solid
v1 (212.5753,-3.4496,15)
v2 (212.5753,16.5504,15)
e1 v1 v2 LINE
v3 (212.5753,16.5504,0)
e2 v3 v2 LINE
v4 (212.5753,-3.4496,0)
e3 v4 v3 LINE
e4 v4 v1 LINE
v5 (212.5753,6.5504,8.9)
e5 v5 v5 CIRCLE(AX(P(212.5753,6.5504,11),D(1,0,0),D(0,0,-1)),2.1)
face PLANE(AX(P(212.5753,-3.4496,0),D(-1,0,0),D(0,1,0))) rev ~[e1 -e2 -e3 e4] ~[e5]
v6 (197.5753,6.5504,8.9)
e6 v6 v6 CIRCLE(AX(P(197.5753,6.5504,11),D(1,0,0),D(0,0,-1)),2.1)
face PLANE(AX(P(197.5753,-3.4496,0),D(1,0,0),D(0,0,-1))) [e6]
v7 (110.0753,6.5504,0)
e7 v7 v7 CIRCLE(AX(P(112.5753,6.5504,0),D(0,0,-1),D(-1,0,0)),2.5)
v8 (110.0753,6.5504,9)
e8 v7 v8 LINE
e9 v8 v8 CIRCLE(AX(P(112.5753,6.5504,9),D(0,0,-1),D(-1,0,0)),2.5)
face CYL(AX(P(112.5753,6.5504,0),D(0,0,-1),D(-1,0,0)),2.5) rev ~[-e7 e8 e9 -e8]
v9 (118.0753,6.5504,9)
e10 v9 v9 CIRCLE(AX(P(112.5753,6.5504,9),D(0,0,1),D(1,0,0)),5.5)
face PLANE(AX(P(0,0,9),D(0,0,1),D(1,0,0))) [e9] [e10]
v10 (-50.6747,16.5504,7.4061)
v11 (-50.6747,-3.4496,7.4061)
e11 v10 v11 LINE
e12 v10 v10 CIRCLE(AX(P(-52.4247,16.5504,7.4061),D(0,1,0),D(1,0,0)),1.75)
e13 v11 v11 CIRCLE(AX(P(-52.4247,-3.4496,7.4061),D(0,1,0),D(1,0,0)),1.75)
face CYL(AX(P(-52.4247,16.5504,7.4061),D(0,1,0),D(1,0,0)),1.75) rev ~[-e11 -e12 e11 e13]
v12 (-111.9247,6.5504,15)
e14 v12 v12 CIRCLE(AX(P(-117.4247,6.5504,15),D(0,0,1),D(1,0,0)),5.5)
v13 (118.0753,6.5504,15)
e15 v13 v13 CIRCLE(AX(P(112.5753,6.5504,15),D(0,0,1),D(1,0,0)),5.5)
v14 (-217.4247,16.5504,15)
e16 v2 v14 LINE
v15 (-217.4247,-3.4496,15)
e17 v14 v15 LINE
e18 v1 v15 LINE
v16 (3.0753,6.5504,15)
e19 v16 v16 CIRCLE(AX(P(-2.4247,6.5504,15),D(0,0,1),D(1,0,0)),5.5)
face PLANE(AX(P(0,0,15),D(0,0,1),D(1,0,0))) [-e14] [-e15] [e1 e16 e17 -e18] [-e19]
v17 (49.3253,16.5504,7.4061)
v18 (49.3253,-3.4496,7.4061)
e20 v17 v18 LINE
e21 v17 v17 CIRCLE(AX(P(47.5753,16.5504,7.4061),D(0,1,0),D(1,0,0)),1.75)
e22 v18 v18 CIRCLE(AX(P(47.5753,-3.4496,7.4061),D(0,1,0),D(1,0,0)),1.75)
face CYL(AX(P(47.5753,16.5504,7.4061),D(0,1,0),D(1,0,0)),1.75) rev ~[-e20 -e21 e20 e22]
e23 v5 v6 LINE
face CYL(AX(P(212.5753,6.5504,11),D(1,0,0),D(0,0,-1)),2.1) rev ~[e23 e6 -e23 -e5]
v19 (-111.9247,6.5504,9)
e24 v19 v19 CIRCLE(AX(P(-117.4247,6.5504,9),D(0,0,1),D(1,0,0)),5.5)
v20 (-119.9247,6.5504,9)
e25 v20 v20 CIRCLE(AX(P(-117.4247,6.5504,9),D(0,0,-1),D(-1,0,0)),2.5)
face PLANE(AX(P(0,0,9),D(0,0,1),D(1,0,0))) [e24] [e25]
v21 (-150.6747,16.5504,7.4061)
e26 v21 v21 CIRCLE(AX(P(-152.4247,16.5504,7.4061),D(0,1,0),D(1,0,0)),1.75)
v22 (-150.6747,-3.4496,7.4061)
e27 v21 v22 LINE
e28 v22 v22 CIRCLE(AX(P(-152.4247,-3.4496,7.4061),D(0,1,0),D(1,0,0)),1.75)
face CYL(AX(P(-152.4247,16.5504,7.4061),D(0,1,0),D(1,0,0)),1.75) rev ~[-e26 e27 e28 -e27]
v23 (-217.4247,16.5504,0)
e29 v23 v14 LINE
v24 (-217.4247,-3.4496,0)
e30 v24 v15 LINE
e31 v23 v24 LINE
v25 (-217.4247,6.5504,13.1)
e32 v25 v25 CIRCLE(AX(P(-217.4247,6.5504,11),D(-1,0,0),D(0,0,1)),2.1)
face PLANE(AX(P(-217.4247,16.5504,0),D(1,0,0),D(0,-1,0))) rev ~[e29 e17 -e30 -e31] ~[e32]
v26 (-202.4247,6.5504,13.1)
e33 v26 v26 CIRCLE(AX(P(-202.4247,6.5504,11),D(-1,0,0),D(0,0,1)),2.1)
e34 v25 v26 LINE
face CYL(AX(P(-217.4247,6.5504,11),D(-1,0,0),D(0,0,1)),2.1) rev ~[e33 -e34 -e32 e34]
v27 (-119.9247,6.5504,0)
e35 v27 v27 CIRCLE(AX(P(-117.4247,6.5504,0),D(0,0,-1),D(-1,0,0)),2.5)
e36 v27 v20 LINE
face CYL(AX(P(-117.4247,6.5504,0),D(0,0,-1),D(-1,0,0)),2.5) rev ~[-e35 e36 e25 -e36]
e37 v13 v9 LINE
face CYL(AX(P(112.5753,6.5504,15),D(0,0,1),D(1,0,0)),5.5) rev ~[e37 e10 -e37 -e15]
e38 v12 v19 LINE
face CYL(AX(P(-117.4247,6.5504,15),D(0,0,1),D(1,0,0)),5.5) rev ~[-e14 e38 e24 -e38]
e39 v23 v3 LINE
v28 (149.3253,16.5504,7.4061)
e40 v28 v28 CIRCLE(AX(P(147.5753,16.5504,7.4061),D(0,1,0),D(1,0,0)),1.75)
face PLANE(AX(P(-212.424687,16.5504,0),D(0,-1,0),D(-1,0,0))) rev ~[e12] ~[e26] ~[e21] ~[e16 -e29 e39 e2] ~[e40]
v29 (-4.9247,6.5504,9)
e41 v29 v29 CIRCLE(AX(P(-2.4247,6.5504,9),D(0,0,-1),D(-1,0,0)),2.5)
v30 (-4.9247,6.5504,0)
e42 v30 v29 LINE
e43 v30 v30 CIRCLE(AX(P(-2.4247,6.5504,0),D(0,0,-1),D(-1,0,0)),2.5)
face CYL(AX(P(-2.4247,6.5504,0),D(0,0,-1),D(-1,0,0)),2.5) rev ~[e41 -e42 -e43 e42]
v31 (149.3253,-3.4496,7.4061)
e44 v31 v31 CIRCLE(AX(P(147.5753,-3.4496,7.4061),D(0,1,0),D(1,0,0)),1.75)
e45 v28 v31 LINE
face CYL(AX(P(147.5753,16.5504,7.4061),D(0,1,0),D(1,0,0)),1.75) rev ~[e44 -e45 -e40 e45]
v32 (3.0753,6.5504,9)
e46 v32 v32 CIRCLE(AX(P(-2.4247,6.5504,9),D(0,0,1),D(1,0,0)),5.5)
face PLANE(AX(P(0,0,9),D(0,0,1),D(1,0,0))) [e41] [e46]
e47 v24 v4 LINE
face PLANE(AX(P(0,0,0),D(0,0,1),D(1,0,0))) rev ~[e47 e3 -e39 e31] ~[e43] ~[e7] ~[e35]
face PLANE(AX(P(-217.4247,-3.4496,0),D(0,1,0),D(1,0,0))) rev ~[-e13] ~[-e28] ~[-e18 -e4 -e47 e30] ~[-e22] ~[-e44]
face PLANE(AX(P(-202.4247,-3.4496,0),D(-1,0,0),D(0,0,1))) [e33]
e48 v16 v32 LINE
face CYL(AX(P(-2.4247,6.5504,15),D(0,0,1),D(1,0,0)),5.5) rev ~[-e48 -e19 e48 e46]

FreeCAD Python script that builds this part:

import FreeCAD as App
import Part
import Sketcher
from FreeCAD import Vector

doc = App.newDocument("Part")
body = doc.addObject("PartDesign::Body", "Body")

# Sketch on XY plane
sketch1 = doc.addObject("Sketcher::SketchObject", "Sketch")
body.addObject(sketch1)
sketch1.AttachmentSupport = (doc.XY_Plane, [""])
sketch1.MapMode = "FlatFace"
sketch1.addGeometry([
    Part.LineSegment(Vector(-217, -3, 0), Vector(213, -3, 0)),
    Part.LineSegment(Vector(213, -3, 0), Vector(213, 17, 0)),
    Part.LineSegment(Vector(213, 17, 0), Vector(-217, 17, 0)),
    Part.LineSegment(Vector(-217, 17, 0), Vector(-217, -3, 0)),
], False)
sketch1.addConstraint([
    Sketcher.Constraint("Coincident", 0, 2, 1, 1),
    Sketcher.Constraint("Coincident", 1, 2, 2, 1),
    Sketcher.Constraint("Coincident", 2, 2, 3, 1),
    Sketcher.Constraint("Coincident", 3, 2, 0, 1),
    Sketcher.Constraint("Horizontal", 0),
    Sketcher.Constraint("Vertical", 1),
    Sketcher.Constraint("Horizontal", 2),
    Sketcher.Constraint("Vertical", 3),
    Sketcher.Constraint("DistanceX", 0, 1, 0, 2, 430.0),
    Sketcher.Constraint("DistanceY", 1, 1, 1, 2, 20.0),
    Sketcher.Constraint("DistanceX", -1, 1, 0, 2, 212.5753),
    Sketcher.Constraint("DistanceY", 0, 2, -1, 1, 3.4496),
])
pad1 = doc.addObject("PartDesign::Pad", "Pad")
body.addObject(pad1)
pad1.Profile = sketch1
pad1.Length = 15

# Sketch on XY plane
sketch2 = doc.addObject("Sketcher::SketchObject", "Sketch001")
body.addObject(sketch2)
sketch2.AttachmentSupport = (doc.XY_Plane, [""])
sketch2.MapMode = "FlatFace"
sketch2.addGeometry([
    Part.Circle(Vector(-117.4, 6.6, 0), Vector(0, 0, 1), 2.5),
    Part.Circle(Vector(112.6, 6.6, 0), Vector(0, 0, 1), 2.5),
    Part.Circle(Vector(-2.4, 6.6, 0), Vector(0, 0, 1), 2.5),
], False)
sketch2.addConstraint([
    Sketcher.Constraint("Equal", 0, 1),
    Sketcher.Constraint("Equal", 1, 2),
    Sketcher.Constraint("Horizontal", 0, 3, 1, 3),
    Sketcher.Constraint("Horizontal", 1, 3, 2, 3),
    Sketcher.Constraint("Diameter", 0, 5.0),
    Sketcher.Constraint("DistanceX", 0, 3, 1, 3, 230.0),
    Sketcher.Constraint("DistanceX", 0, 3, 2, 3, 115.0),
    Sketcher.Constraint("DistanceX", 0, 3, -1, 1, 117.4247),
    Sketcher.Constraint("DistanceY", -1, 1, 0, 3, 6.5504),
])
pocket1 = doc.addObject("PartDesign::Pocket", "Pocket")
body.addObject(pocket1)
pocket1.Profile = sketch2
pocket1.Type = "ThroughAll"
pocket1.Reversed = True

# Sketch on XY plane
sketch3 = doc.addObject("Sketcher::SketchObject", "Sketch002")
body.addObject(sketch3)
sketch3.AttachmentSupport = (doc.XY_Plane, [""])
sketch3.MapMode = "FlatFace"
sketch3.AttachmentOffset = App.Placement(Vector(0, 0, 15), App.Rotation())
sketch3.addGeometry([
    Part.Circle(Vector(-117, 7, 0), Vector(0, 0, 1), 6),
    Part.Circle(Vector(-2, 7, 0), Vector(0, 0, 1), 6),
    Part.Circle(Vector(113, 7, 0), Vector(0, 0, 1), 6),
], False)
sketch3.addConstraint([
    Sketcher.Constraint("Equal", 0, 1),
    Sketcher.Constraint("Equal", 1, 2),
    Sketcher.Constraint("Horizontal", 0, 3, 1, 3),
    Sketcher.Constraint("Horizontal", 1, 3, 2, 3),
    Sketcher.Constraint("Diameter", 0, 11.0),
    Sketcher.Constraint("DistanceX", 0, 3, 1, 3, 115.0),
    Sketcher.Constraint("DistanceX", 1, 3, 2, 3, 115.0),
    Sketcher.Constraint("DistanceX", 0, 3, -1, 1, 117.4247),
    Sketcher.Constraint("DistanceY", -1, 1, 0, 3, 6.5504),
])
pocket2 = doc.addObject("PartDesign::Pocket", "Pocket001")
body.addObject(pocket2)
pocket2.Profile = sketch3
pocket2.Length = 6

# Sketch on YZ plane
sketch4 = doc.addObject("Sketcher::SketchObject", "Sketch003")
body.addObject(sketch4)
sketch4.AttachmentSupport = (doc.YZ_Plane, [""])
sketch4.MapMode = "FlatFace"
sketch4.AttachmentOffset = App.Placement(Vector(0, 0, 212.5753), App.Rotation())
sketch4.addGeometry(Part.Circle(Vector(6.6, 11, 0), Vector(0, 0, 1), 2.1), False)
sketch4.addConstraint([
    Sketcher.Constraint("Diameter", 0, 4.2),
    Sketcher.Constraint("DistanceY", -1, 1, 0, 3, 11.0),
    Sketcher.Constraint("DistanceX", -1, 1, 0, 3, 6.5504),
])
pocket3 = doc.addObject("PartDesign::Pocket", "Pocket002")
body.addObject(pocket3)
pocket3.Profile = sketch4
pocket3.Length = 15

# Sketch on YZ plane
sketch5 = doc.addObject("Sketcher::SketchObject", "Sketch004")
body.addObject(sketch5)
sketch5.AttachmentSupport = (doc.YZ_Plane, [""])
sketch5.MapMode = "FlatFace"
sketch5.AttachmentOffset = App.Placement(Vector(0, 0, -217.4247), App.Rotation())
sketch5.addGeometry(Part.Circle(Vector(6.6, 11, 0), Vector(0, 0, 1), 2.1), False)
sketch5.addConstraint([
    Sketcher.Constraint("Diameter", 0, 4.2),
    Sketcher.Constraint("DistanceY", -1, 1, 0, 3, 11.0),
    Sketcher.Constraint("DistanceX", -1, 1, 0, 3, 6.5504),
])
pocket4 = doc.addObject("PartDesign::Pocket", "Pocket003")
body.addObject(pocket4)
pocket4.Profile = sketch5
pocket4.Length = 15
pocket4.Reversed = True

# Sketch on XZ plane
sketch6 = doc.addObject("Sketcher::SketchObject", "Sketch005")
body.addObject(sketch6)
sketch6.AttachmentSupport = (doc.XZ_Plane, [""])
sketch6.MapMode = "FlatFace"
sketch6.AttachmentOffset = App.Placement(Vector(0, 0, -16.5504), App.Rotation())
sketch6.addGeometry([
    Part.Circle(Vector(-152.4, 7.4, 0), Vector(0, 0, 1), 1.8),
    Part.Circle(Vector(-52.4, 7.4, 0), Vector(0, 0, 1), 1.8),
    Part.Circle(Vector(47.6, 7.4, 0), Vector(0, 0, 1), 1.8),
    Part.Circle(Vector(147.6, 7.4, 0), Vector(0, 0, 1), 1.8),
], False)
sketch6.addConstraint([
    Sketcher.Constraint("Equal", 0, 1),
    Sketcher.Constraint("Equal", 1, 2),
    Sketcher.Constraint("Equal", 2, 3),
    Sketcher.Constraint("Horizontal", 0, 3, 1, 3),
    Sketcher.Constraint("Horizontal", 1, 3, 2, 3),
    Sketcher.Constraint("Horizontal", 2, 3, 3, 3),
    Sketcher.Constraint("Diameter", 0, 3.5),
    Sketcher.Constraint("DistanceX", 0, 3, 1, 3, 100.0),
    Sketcher.Constraint("DistanceX", 1, 3, 2, 3, 100.0),
    Sketcher.Constraint("DistanceX", 2, 3, 3, 3, 100.0),
    Sketcher.Constraint("DistanceY", -1, 1, 0, 3, 7.406),
    Sketcher.Constraint("DistanceX", 0, 3, -1, 1, 152.4247),
])
pocket5 = doc.addObject("PartDesign::Pocket", "Pocket004")
body.addObject(pocket5)
pocket5.Profile = sketch6
pocket5.Type = "ThroughAll"
pocket5.Reversed = True

doc.recompute()
